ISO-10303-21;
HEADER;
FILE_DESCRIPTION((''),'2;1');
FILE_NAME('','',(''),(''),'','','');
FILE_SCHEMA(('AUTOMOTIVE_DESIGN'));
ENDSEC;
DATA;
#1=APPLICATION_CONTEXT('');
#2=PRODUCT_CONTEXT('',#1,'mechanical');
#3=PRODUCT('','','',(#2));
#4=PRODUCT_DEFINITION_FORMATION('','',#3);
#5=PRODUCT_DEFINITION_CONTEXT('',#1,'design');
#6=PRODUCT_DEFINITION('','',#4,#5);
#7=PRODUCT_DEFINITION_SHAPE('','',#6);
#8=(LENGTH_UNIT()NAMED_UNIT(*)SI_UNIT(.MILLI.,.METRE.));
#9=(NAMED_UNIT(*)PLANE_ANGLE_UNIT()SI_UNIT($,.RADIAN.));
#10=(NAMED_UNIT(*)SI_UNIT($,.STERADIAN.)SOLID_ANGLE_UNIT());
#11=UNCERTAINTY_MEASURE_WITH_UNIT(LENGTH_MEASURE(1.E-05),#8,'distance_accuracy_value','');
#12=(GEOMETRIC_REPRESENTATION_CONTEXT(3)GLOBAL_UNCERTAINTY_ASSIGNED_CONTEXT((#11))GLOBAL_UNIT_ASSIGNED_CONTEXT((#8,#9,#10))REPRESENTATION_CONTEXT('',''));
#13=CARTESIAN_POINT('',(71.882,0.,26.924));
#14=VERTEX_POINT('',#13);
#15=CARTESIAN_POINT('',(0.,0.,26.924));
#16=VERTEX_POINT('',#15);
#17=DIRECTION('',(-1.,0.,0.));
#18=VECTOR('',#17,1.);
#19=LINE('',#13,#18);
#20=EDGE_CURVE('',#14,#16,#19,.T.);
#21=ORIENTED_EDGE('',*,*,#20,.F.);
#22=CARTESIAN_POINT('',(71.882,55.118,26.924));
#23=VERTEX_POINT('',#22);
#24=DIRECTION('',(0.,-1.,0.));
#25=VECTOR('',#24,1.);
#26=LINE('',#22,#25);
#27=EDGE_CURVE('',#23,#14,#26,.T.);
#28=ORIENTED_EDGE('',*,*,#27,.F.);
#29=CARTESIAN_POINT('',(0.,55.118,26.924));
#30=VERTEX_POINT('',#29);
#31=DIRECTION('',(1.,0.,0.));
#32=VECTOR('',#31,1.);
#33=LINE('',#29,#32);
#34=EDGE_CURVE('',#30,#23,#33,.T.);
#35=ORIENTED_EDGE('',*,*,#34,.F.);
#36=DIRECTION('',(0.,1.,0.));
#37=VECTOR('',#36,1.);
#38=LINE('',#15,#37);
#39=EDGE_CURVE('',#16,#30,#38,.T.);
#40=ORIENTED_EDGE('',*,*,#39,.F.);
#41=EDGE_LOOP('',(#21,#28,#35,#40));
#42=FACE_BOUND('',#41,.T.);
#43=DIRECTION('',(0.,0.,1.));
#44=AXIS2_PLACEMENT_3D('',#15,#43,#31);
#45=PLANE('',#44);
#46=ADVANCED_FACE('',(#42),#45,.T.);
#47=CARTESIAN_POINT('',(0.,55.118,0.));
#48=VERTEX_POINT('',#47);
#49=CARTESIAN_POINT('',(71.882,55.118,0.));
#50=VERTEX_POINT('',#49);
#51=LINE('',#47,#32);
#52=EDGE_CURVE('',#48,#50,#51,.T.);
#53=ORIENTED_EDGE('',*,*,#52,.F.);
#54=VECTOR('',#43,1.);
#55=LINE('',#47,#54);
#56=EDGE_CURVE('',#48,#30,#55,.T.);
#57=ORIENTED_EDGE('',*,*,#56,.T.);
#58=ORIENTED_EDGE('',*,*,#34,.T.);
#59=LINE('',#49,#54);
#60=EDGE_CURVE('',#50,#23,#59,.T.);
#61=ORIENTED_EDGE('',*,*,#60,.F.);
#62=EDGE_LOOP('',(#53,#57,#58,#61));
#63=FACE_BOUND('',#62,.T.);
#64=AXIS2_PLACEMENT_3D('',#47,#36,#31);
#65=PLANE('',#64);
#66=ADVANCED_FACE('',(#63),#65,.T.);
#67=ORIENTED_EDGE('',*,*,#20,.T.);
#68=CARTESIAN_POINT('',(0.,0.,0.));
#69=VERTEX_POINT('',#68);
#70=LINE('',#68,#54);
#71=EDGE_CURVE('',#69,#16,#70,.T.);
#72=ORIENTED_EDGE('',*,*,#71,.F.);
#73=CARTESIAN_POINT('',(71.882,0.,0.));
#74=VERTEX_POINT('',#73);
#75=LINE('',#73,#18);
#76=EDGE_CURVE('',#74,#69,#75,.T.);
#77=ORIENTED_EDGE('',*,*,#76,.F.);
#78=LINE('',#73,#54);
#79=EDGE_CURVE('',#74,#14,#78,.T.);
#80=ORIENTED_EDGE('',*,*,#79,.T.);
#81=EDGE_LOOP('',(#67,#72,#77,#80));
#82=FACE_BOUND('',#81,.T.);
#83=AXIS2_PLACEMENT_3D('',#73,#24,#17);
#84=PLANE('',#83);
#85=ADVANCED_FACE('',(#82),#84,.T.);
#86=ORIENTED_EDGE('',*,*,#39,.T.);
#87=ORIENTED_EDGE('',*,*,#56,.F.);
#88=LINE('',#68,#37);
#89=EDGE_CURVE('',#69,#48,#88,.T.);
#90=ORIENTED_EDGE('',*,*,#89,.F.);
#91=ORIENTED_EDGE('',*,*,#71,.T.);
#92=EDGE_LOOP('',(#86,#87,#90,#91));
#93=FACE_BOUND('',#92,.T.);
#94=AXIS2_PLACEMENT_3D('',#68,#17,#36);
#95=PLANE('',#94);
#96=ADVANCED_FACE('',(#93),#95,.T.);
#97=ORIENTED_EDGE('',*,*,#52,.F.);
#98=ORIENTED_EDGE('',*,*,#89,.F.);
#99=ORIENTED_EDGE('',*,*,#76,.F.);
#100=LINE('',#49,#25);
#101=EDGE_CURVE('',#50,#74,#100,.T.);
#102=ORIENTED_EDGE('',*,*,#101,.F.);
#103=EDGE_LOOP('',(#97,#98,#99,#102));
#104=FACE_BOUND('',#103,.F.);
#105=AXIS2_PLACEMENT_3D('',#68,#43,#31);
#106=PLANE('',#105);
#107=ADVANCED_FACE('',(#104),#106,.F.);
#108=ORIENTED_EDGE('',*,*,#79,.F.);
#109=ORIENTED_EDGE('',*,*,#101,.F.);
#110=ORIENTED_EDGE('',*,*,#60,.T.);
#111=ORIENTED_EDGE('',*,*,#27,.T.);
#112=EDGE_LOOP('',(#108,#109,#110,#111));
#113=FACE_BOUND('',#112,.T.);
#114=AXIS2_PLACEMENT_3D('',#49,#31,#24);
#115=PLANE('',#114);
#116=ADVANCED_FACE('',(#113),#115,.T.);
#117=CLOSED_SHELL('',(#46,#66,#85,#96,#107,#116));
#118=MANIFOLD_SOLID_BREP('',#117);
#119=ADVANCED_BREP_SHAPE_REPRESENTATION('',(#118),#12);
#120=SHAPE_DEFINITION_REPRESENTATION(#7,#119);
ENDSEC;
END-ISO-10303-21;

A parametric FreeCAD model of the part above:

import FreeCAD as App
import Part
import Sketcher
Q = App.Units.Quantity

doc = App.newDocument("Part")
body = doc.addObject("PartDesign::Body", "Body")

# Sketch on XY plane
sketch1 = doc.addObject("Sketcher::SketchObject", "Sketch")
body.addObject(sketch1)
sketch1.AttachmentSupport = (doc.XY_Plane, [""])
sketch1.MapMode = "FlatFace"
sketch1.addGeometry([
    Part.LineSegment(App.Vector(0, 55.118, 0), App.Vector(0, 0, 0)),
    Part.LineSegment(App.Vector(0, 0, 0), App.Vector(71.882, 0, 0)),
    Part.LineSegment(App.Vector(71.882, 0, 0), App.Vector(71.882, 55.118, 0)),
    Part.LineSegment(App.Vector(71.882, 55.118, 0), App.Vector(0, 55.118, 0)),
], False)
sketch1.addConstraint([
    Sketcher.Constraint("Coincident", 0, 2, 1, 1),
    Sketcher.Constraint("Coincident", 1, 2, 2, 1),
    Sketcher.Constraint("Coincident", 2, 2, 3, 1),
    Sketcher.Constraint("Coincident", 3, 2, 0, 1),
    Sketcher.Constraint("Vertical", 0),
    Sketcher.Constraint("Horizontal", 1),
    Sketcher.Constraint("Vertical", 2),
    Sketcher.Constraint("Horizontal", 3),
    Sketcher.Constraint("Coincident", 0, 2, -1, 1),
    Sketcher.Constraint("DistanceX", 1, 1, 1, 2, Q("2.83 in")),
    Sketcher.Constraint("DistanceY", 0, 2, 0, 1, Q("2.17 in")),
])
pad1 = doc.addObject("PartDesign::Pad", "Pad")
body.addObject(pad1)
pad1.Profile = sketch1
pad1.Length = Q("1.06 in")

doc.recompute()
